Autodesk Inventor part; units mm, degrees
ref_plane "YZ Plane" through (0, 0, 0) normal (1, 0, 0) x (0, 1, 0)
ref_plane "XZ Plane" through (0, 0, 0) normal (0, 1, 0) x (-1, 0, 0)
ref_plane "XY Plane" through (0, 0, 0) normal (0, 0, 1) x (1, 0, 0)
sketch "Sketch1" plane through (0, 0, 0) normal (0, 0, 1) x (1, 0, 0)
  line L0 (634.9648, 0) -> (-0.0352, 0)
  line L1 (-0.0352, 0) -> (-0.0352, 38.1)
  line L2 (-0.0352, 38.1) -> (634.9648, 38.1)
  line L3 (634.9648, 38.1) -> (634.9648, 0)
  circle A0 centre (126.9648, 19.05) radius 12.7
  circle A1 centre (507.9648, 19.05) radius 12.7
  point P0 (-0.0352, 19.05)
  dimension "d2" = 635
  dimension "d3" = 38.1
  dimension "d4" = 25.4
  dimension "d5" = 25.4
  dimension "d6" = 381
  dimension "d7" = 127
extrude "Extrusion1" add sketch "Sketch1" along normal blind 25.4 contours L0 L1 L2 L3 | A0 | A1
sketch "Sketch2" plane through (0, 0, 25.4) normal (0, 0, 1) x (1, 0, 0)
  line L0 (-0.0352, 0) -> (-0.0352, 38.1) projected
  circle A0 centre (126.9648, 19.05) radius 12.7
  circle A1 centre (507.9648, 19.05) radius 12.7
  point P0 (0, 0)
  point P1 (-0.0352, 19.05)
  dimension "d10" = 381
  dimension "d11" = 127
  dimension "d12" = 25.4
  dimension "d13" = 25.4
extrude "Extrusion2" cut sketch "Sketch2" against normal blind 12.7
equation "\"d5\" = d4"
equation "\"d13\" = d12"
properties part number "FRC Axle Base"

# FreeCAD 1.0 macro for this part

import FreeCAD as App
import Part
import Sketcher
Q = App.Units.Quantity


def add_polygon(sketch, points):
    """Adds a closed chain of lines whose ends are joined by coincident constraints."""
    first, n = sketch.GeometryCount, len(points)
    for a, b in zip(points, points[1:] + points[:1]):
        sketch.addGeometry(Part.LineSegment(App.Vector(*a, 0), App.Vector(*b, 0)), False)
    for i in range(n):
        sketch.addConstraint(Sketcher.Constraint("Coincident", first + i, 2, first + (i + 1) % n, 1))

doc = App.newDocument("Part")
body = doc.addObject("PartDesign::Body", "Body")

# Sketch on XY plane
sketch1 = doc.addObject("Sketcher::SketchObject", "Sketch")
body.addObject(sketch1)
sketch1.AttachmentSupport = (doc.XY_Plane, [""])
sketch1.MapMode = "FlatFace"
add_polygon(sketch1, [(-0.0352, 0), (634.9648, 0), (634.9648, 38.1), (-0.0352, 38.1)])  # lines 0-3
sketch1.addConstraint([
    Sketcher.Constraint("Horizontal", 0),
    Sketcher.Constraint("Vertical", 1),
    Sketcher.Constraint("Horizontal", 2),
    Sketcher.Constraint("Vertical", 3),
    Sketcher.Constraint("PointOnObject", 0, 2, -1),
    Sketcher.Constraint("DistanceX", 0, 1, 0, 2, Q("25 in")),
    Sketcher.Constraint("DistanceY", 1, 1, 1, 2, Q("1.5 in")),
    Sketcher.Constraint("DistanceX", -1, 1, 0, 2, Q("634.9648 mm")),
])
pad1 = doc.addObject("PartDesign::Pad", "Pad")
body.addObject(pad1)
pad1.Profile = sketch1
pad1.Length = Q("1 in")

# Sketch on XY plane
sketch2 = doc.addObject("Sketcher::SketchObject", "Sketch001")
body.addObject(sketch2)
sketch2.AttachmentSupport = (doc.XY_Plane, [""])
sketch2.MapMode = "FlatFace"
sketch2.AttachmentOffset = App.Placement(App.Vector(0, 0, 1 * 25.4), App.Rotation())
sketch2.addGeometry([
    Part.Circle(App.Vector(126.9648, 19.05, 0), App.Vector(0, 0, 1), 12.7),
    Part.Circle(App.Vector(507.9648, 19.05, 0), App.Vector(0, 0, 1), 12.7),
], False)
sketch2.addConstraint([
    Sketcher.Constraint("Equal", 0, 1),
    Sketcher.Constraint("Horizontal", 0, 3, 1, 3),
    Sketcher.Constraint("Diameter", 0, Q("1 in")),
    Sketcher.Constraint("DistanceX", 0, 3, 1, 3, Q("15 in")),
    Sketcher.Constraint("DistanceY", -1, 1, 0, 3, Q("0.75 in")),
    Sketcher.Constraint("DistanceX", -1, 1, 0, 3, Q("126.9648 mm")),
])
pocket1 = doc.addObject("PartDesign::Pocket", "Pocket")
body.addObject(pocket1)
pocket1.Profile = sketch2
pocket1.Length = Q("0.5 in")

doc.recompute()
